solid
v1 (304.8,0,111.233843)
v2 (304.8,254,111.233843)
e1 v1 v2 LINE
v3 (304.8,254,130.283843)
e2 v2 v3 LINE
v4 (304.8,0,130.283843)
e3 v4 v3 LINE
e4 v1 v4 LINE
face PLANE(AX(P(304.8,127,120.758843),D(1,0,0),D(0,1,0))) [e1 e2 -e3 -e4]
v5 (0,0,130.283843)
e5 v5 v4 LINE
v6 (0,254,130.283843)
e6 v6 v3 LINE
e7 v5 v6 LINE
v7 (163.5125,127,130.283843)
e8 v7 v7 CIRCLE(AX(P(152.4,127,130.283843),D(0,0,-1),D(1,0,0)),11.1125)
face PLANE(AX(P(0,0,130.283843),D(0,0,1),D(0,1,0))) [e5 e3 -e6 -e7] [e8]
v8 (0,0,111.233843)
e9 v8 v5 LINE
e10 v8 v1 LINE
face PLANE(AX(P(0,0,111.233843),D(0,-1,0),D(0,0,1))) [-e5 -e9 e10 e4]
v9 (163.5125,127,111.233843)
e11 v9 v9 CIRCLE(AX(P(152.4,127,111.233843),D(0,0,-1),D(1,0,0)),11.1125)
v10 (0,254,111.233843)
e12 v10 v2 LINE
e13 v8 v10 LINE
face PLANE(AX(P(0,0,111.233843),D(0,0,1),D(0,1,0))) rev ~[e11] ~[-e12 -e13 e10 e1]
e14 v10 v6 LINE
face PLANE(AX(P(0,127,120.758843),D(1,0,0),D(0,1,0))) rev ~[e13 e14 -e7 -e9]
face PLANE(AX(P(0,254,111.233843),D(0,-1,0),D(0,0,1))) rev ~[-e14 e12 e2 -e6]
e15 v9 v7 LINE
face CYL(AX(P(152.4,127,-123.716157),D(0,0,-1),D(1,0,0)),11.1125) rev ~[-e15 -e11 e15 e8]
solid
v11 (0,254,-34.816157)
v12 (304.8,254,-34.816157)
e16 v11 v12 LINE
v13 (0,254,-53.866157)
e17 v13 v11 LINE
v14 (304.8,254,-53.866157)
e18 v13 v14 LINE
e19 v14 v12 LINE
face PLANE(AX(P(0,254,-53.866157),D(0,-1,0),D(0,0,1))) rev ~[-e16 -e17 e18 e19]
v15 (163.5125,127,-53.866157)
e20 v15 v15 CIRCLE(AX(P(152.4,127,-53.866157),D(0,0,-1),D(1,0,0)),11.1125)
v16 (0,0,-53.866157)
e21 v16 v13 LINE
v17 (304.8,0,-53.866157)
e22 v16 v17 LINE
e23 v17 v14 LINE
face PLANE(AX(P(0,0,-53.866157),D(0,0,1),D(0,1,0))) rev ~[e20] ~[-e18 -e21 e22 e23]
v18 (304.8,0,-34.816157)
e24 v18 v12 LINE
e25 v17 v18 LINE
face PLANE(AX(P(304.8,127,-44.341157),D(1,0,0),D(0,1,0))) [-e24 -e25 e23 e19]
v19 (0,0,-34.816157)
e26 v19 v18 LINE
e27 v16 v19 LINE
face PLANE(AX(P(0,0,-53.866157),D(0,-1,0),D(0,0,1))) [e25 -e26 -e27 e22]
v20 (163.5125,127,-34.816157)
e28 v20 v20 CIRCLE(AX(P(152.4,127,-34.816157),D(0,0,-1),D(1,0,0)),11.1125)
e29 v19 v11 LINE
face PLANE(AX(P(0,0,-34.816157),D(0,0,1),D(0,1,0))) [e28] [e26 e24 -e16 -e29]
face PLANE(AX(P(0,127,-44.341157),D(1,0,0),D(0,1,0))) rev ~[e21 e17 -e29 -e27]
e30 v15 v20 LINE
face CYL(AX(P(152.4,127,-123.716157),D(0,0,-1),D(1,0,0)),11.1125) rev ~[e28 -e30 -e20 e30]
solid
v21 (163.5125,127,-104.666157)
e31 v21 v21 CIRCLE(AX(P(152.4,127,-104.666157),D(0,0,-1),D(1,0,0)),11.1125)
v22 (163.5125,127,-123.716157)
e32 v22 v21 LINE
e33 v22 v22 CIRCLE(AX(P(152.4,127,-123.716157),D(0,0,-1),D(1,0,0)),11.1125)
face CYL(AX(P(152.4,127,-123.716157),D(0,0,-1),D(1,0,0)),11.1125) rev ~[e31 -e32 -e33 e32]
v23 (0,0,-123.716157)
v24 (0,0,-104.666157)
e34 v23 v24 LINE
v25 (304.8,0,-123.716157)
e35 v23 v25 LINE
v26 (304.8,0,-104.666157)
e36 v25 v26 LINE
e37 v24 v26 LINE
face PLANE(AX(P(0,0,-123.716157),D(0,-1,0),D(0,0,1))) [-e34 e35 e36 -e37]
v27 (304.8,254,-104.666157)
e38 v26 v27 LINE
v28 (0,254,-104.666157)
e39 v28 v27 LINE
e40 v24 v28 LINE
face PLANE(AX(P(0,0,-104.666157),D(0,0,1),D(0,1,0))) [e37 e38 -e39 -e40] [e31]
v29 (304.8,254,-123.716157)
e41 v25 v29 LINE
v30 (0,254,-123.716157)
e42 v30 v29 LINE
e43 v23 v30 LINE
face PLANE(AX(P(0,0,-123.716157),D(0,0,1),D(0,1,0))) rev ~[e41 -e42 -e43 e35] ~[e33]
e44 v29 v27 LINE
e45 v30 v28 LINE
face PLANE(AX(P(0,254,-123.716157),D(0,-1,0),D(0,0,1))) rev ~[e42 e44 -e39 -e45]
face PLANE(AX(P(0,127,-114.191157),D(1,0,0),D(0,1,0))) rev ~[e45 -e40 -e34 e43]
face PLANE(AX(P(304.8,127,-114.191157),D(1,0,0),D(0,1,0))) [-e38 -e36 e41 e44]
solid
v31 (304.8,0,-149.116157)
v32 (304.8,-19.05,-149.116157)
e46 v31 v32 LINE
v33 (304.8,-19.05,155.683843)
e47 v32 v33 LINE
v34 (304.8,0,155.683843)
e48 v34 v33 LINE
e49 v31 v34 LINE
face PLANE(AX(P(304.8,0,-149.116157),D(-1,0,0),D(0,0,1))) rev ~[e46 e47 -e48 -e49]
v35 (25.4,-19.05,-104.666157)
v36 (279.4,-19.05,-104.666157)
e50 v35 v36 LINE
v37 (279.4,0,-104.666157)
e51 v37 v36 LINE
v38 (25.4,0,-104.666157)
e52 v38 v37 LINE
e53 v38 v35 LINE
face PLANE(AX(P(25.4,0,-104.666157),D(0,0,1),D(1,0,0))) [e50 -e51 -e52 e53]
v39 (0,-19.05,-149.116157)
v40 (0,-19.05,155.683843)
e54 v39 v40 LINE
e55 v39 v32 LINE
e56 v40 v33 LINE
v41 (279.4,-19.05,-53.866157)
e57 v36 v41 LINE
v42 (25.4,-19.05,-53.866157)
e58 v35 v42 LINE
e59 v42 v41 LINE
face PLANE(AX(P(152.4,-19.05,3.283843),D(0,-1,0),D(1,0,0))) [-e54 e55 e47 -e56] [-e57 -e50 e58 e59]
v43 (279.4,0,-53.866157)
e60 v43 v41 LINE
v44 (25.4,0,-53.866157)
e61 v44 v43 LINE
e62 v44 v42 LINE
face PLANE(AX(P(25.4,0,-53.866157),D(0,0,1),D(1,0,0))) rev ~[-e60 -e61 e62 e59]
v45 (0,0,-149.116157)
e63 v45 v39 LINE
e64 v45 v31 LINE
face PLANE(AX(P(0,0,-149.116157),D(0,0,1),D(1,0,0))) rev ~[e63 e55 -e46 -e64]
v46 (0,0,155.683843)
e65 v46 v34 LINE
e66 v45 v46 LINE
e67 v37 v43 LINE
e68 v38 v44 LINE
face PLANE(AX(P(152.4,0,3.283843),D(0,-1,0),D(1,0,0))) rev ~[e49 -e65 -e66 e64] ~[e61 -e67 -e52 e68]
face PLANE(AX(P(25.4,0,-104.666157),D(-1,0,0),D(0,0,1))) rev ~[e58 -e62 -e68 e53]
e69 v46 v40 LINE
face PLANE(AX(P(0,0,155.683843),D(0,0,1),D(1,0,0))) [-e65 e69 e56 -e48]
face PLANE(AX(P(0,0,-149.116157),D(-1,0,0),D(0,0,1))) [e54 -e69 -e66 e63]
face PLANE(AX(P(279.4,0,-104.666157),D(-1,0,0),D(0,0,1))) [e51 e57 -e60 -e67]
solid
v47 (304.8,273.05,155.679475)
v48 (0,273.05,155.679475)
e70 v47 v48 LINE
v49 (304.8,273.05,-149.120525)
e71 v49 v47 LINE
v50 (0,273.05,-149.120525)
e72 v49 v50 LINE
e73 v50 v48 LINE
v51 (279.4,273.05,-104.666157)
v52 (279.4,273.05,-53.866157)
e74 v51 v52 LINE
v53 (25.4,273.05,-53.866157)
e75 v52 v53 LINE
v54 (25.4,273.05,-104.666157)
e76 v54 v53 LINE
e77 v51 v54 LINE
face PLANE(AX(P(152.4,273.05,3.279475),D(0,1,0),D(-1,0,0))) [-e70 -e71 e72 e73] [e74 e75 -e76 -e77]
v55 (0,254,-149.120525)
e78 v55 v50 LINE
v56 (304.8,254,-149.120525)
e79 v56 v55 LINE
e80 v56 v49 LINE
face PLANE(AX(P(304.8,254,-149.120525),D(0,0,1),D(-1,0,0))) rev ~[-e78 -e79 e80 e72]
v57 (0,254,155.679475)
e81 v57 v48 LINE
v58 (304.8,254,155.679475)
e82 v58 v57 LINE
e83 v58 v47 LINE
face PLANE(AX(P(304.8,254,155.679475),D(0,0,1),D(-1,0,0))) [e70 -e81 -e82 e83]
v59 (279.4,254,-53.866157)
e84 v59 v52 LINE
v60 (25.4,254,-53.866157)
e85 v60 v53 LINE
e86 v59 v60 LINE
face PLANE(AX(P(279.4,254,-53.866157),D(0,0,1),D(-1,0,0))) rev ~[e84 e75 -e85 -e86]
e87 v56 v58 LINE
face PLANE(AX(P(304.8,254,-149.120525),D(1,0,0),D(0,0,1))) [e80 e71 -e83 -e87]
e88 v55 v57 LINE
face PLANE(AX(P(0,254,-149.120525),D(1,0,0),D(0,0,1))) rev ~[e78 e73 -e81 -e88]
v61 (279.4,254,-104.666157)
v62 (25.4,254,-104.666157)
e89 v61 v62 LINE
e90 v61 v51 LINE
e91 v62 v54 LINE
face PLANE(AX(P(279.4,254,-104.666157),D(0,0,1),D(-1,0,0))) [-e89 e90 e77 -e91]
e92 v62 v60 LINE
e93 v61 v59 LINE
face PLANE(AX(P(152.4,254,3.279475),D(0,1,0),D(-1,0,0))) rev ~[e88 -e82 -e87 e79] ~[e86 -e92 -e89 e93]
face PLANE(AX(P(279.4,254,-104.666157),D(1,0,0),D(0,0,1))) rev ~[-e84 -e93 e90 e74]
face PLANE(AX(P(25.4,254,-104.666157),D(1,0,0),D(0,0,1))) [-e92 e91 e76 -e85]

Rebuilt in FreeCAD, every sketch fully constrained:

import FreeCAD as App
import Part
import Sketcher
Q = App.Units.Quantity


def add_polygon(sketch, points):
    """Adds a closed chain of lines whose ends are joined by coincident constraints."""
    first, n = sketch.GeometryCount, len(points)
    for a, b in zip(points, points[1:] + points[:1]):
        sketch.addGeometry(Part.LineSegment(App.Vector(*a, 0), App.Vector(*b, 0)), False)
    for i in range(n):
        sketch.addConstraint(Sketcher.Constraint("Coincident", first + i, 2, first + (i + 1) % n, 1))

doc = App.newDocument("Part")
body = doc.addObject("PartDesign::Body", "Body")

sketch1 = body.newObject("Sketcher::SketchObject", "Sketch")
sketch1.AttachmentSupport = (doc.getObject("YZ_Plane"), [""])
sketch1.MapMode = "FlatFace"
add_polygon(sketch1, [(0, 130), (0, 111), (254, 111), (254, 130)])
sketch1.addConstraint(Sketcher.Constraint("Vertical", 0))
sketch1.addConstraint(Sketcher.Constraint("Horizontal", 1))
sketch1.addConstraint(Sketcher.Constraint("Vertical", 2))
sketch1.addConstraint(Sketcher.Constraint("Horizontal", 3))
sketch1.addConstraint(Sketcher.Constraint("PointOnObject", 0, 2, -2))
sketch1.addConstraint(Sketcher.Constraint("DistanceX", 1, 1, 1, 2, Q("10 in")))
sketch1.addConstraint(Sketcher.Constraint("DistanceY", 0, 2, 0, 1, Q("0.75 in")))
sketch1.addConstraint(Sketcher.Constraint("DistanceY", -1, 1, 0, 2, Q("111.233843 mm")))
pad1 = body.newObject("PartDesign::Pad", "Pad")
pad1.Profile = sketch1
pad1.Length = Q("12 in")
body2 = doc.addObject("PartDesign::Body", "Body001")

sketch2 = body2.newObject("Sketcher::SketchObject", "Sketch001")
sketch2.AttachmentSupport = (doc.getObject("YZ_Plane001"), [""])
sketch2.MapMode = "FlatFace"
add_polygon(sketch2, [(0, -35), (0, -54), (254, -54), (254, -35)])
sketch2.addConstraint(Sketcher.Constraint("Vertical", 0))
sketch2.addConstraint(Sketcher.Constraint("Horizontal", 1))
sketch2.addConstraint(Sketcher.Constraint("Vertical", 2))
sketch2.addConstraint(Sketcher.Constraint("Horizontal", 3))
sketch2.addConstraint(Sketcher.Constraint("PointOnObject", 0, 2, -2))
sketch2.addConstraint(Sketcher.Constraint("DistanceX", 1, 1, 1, 2, Q("10 in")))
sketch2.addConstraint(Sketcher.Constraint("DistanceY", 0, 2, 0, 1, Q("0.75 in")))
sketch2.addConstraint(Sketcher.Constraint("DistanceY", 0, 2, -1, 1, Q("53.866157 mm")))
pad2 = body2.newObject("PartDesign::Pad", "Pad001")
pad2.Profile = sketch2
pad2.Length = Q("12 in")
body3 = doc.addObject("PartDesign::Body", "Body002")

sketch3 = body3.newObject("Sketcher::SketchObject", "Sketch002")
sketch3.AttachmentSupport = (doc.getObject("YZ_Plane002"), [""])
sketch3.MapMode = "FlatFace"
add_polygon(sketch3, [(0, -105), (0, -124), (254, -124), (254, -105)])
sketch3.addConstraint(Sketcher.Constraint("Vertical", 0))
sketch3.addConstraint(Sketcher.Constraint("Horizontal", 1))
sketch3.addConstraint(Sketcher.Constraint("Vertical", 2))
sketch3.addConstraint(Sketcher.Constraint("Horizontal", 3))
sketch3.addConstraint(Sketcher.Constraint("PointOnObject", 0, 2, -2))
sketch3.addConstraint(Sketcher.Constraint("DistanceX", 1, 1, 1, 2, Q("10 in")))
sketch3.addConstraint(Sketcher.Constraint("DistanceY", 0, 2, 0, 1, Q("0.75 in")))
sketch3.addConstraint(Sketcher.Constraint("DistanceY", 0, 2, -1, 1, Q("123.716157 mm")))
pad3 = body3.newObject("PartDesign::Pad", "Pad002")
pad3.Profile = sketch3
pad3.Length = Q("12 in")
body4 = doc.addObject("PartDesign::Body", "Body003")

sketch4 = body4.newObject("Sketcher::SketchObject", "Sketch003")
sketch4.AttachmentSupport = (doc.getObject("XZ_Plane003"), [""])
sketch4.MapMode = "FlatFace"
sketch4.AttachmentOffset = App.Placement(App.Vector(0, 0, -10 * 25.4), App.Rotation())
add_polygon(sketch4, [(305, 156), (305, -149), (0, -149), (0, 156)])
add_polygon(sketch4, [(25, -105), (279, -105), (279, -54), (25, -54)])
sketch4.addConstraint(Sketcher.Constraint("Vertical", 0))
sketch4.addConstraint(Sketcher.Constraint("Horizontal", 1))
sketch4.addConstraint(Sketcher.Constraint("Vertical", 2))
sketch4.addConstraint(Sketcher.Constraint("Horizontal", 3))
sketch4.addConstraint(Sketcher.Constraint("Horizontal", 4))
sketch4.addConstraint(Sketcher.Constraint("Vertical", 5))
sketch4.addConstraint(Sketcher.Constraint("Horizontal", 6))
sketch4.addConstraint(Sketcher.Constraint("Vertical", 7))
sketch4.addConstraint(Sketcher.Constraint("PointOnObject", 1, 2, -2))
sketch4.addConstraint(Sketcher.Constraint("Equal", 3, 0))
sketch4.addConstraint(Sketcher.Constraint("DistanceX", 1, 2, 1, 1, Q("12 in")))
sketch4.addConstraint(Sketcher.Constraint("DistanceX", 4, 1, 4, 2, Q("10 in")))
sketch4.addConstraint(Sketcher.Constraint("DistanceY", 5, 1, 5, 2, Q("2 in")))
sketch4.addConstraint(Sketcher.Constraint("DistanceX", -1, 1, 4, 2, Q("11 in")))
sketch4.addConstraint(Sketcher.Constraint("DistanceY", 0, 2, -1, 1, Q("149.120525 mm")))
sketch4.addConstraint(Sketcher.Constraint("DistanceY", 4, 2, -1, 1, Q("104.666157 mm")))
pad4 = body4.newObject("PartDesign::Pad", "Pad003")
pad4.Profile = sketch4
pad4.Length = Q("0.75 in")
pad4.Reversed = True
body5 = doc.addObject("PartDesign::Body", "Body004")

sketch5 = body5.newObject("Sketcher::SketchObject", "Sketch004")
sketch5.AttachmentSupport = (doc.getObject("XZ_Plane004"), [""])
sketch5.MapMode = "FlatFace"
add_polygon(sketch5, [(0, 156), (0, -149), (305, -149), (305, 156)])
add_polygon(sketch5, [(279, -105), (25, -105), (25, -54), (279, -54)])
sketch5.addConstraint(Sketcher.Constraint("Vertical", 0))
sketch5.addConstraint(Sketcher.Constraint("Horizontal", 1))
sketch5.addConstraint(Sketcher.Constraint("Vertical", 2))
sketch5.addConstraint(Sketcher.Constraint("Horizontal", 3))
sketch5.addConstraint(Sketcher.Constraint("Horizontal", 4))
sketch5.addConstraint(Sketcher.Constraint("Vertical", 5))
sketch5.addConstraint(Sketcher.Constraint("Horizontal", 6))
sketch5.addConstraint(Sketcher.Constraint("Vertical", 7))
sketch5.addConstraint(Sketcher.Constraint("PointOnObject", 0, 2, -2))
sketch5.addConstraint(Sketcher.Constraint("Equal", 3, 0))
sketch5.addConstraint(Sketcher.Constraint("DistanceX", 1, 1, 1, 2, Q("12 in")))
sketch5.addConstraint(Sketcher.Constraint("DistanceX", 4, 2, 4, 1, Q("10 in")))
sketch5.addConstraint(Sketcher.Constraint("DistanceY", 5, 1, 5, 2, Q("2 in")))
sketch5.addConstraint(Sketcher.Constraint("DistanceX", -1, 1, 4, 2, Q("1 in")))
sketch5.addConstraint(Sketcher.Constraint("DistanceY", 0, 2, 4, 2, Q("1.75 in")))
sketch5.addConstraint(Sketcher.Constraint("DistanceY", 0, 2, -1, 1, Q("149.116157 mm")))
pad5 = body5.newObject("PartDesign::Pad", "Pad004")
pad5.Profile = sketch5
pad5.Length = Q("0.75 in")
body6 = doc.addObject("PartDesign::Body", "Body005")

sketch6 = body6.newObject("Sketcher::SketchObject", "Sketch005")
sketch6.AttachmentSupport = (doc.getObject("XY_Plane005"), [""])
sketch6.MapMode = "FlatFace"
sketch6.AttachmentOffset = App.Placement(App.Vector(0, 0, -123.716157), App.Rotation())
sketch6.addGeometry(Part.Circle(App.Vector(152, 127, 0), App.Vector(0, 0, 1), 11), False)
sketch6.addConstraint(Sketcher.Constraint("Diameter", 0, Q("0.875 in")))
sketch6.addConstraint(Sketcher.Constraint("DistanceX", -1, 1, 0, 3, Q("6 in")))
sketch6.addConstraint(Sketcher.Constraint("DistanceY", -1, 1, 0, 3, Q("5 in")))
pad6 = body6.newObject("PartDesign::Pad", "Pad005")
pad6.Profile = sketch6
pad6.Length = Q("10 in")
doc.recompute()

body7 = doc.addObject("PartDesign::Body", "Body006")
body7.BaseFeature = body6
boolean = body.newObject("PartDesign::Boolean", "Boolean")
boolean.Type = "Cut"
boolean.addObjects([body7])
doc.recompute()

body8 = doc.addObject("PartDesign::Body", "Body007")
body8.BaseFeature = body6
boolean2 = body2.newObject("PartDesign::Boolean", "Boolean001")
boolean2.Type = "Cut"
boolean2.addObjects([body8])
doc.recompute()

boolean3 = body3.newObject("PartDesign::Boolean", "Boolean002")
boolean3.Type = "Cut"
boolean3.addObjects([body6])

doc.recompute()
